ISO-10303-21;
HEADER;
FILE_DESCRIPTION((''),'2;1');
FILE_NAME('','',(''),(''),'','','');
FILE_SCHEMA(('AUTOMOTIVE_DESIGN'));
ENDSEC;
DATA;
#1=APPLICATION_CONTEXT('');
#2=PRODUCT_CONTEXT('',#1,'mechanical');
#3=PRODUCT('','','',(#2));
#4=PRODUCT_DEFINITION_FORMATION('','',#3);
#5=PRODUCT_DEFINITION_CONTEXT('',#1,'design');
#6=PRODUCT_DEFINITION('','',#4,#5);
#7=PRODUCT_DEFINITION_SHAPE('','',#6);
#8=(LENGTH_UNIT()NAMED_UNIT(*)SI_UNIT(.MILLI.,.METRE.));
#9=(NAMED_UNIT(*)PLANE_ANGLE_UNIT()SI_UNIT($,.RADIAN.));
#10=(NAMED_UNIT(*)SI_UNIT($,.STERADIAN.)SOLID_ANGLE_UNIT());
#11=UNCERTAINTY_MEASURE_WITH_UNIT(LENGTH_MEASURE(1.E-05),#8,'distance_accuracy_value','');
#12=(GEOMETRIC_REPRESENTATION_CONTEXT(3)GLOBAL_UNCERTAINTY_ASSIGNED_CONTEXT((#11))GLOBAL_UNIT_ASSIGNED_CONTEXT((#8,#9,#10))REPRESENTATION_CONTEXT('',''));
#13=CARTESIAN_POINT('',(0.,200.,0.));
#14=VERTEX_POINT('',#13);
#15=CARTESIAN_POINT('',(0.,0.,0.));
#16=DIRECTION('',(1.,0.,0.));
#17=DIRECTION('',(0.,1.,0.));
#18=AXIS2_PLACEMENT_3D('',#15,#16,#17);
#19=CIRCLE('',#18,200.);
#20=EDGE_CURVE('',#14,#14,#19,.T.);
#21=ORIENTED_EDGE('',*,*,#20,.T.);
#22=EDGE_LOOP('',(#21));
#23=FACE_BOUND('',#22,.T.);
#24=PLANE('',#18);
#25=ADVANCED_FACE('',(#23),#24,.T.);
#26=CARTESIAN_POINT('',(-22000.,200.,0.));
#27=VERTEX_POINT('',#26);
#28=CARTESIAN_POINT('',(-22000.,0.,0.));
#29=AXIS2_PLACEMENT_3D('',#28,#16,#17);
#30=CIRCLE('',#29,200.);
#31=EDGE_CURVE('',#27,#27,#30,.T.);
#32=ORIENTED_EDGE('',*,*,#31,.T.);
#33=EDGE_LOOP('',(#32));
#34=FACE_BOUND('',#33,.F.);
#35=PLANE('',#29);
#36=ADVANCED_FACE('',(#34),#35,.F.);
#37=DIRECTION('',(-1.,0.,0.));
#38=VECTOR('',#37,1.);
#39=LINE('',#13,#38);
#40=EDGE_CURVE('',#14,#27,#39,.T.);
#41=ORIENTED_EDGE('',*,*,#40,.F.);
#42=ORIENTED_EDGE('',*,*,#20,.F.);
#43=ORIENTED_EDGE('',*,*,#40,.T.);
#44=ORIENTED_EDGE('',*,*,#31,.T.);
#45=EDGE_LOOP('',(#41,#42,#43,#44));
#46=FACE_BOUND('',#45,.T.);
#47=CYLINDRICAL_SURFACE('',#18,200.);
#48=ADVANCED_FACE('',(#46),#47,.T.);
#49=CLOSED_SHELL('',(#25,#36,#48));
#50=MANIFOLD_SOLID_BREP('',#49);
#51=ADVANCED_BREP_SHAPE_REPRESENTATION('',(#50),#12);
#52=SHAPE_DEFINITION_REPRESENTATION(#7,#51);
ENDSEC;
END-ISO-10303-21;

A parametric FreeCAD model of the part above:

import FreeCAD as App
import Part
import Sketcher
Q = App.Units.Quantity

doc = App.newDocument("Part")
body = doc.addObject("PartDesign::Body", "Body")

# Sketch on YZ plane
sketch1 = body.newObject("Sketcher::SketchObject", "Sketch")
sketch1.AttachmentSupport = (doc.getObject("YZ_Plane"), [""])
sketch1.MapMode = "FlatFace"
sketch1.addGeometry(Part.Circle(App.Vector(0, 0, 0), App.Vector(0, 0, 1), 200), False)
sketch1.addConstraint([
    Sketcher.Constraint("Coincident", 0, 3, -1, 1),
    Sketcher.Constraint("Diameter", 0, Q("400 mm")),
])
pad1 = body.newObject("PartDesign::Pad", "Pad")
pad1.Profile = sketch1
pad1.Length = 22000
pad1.Reversed = True

doc.recompute()
